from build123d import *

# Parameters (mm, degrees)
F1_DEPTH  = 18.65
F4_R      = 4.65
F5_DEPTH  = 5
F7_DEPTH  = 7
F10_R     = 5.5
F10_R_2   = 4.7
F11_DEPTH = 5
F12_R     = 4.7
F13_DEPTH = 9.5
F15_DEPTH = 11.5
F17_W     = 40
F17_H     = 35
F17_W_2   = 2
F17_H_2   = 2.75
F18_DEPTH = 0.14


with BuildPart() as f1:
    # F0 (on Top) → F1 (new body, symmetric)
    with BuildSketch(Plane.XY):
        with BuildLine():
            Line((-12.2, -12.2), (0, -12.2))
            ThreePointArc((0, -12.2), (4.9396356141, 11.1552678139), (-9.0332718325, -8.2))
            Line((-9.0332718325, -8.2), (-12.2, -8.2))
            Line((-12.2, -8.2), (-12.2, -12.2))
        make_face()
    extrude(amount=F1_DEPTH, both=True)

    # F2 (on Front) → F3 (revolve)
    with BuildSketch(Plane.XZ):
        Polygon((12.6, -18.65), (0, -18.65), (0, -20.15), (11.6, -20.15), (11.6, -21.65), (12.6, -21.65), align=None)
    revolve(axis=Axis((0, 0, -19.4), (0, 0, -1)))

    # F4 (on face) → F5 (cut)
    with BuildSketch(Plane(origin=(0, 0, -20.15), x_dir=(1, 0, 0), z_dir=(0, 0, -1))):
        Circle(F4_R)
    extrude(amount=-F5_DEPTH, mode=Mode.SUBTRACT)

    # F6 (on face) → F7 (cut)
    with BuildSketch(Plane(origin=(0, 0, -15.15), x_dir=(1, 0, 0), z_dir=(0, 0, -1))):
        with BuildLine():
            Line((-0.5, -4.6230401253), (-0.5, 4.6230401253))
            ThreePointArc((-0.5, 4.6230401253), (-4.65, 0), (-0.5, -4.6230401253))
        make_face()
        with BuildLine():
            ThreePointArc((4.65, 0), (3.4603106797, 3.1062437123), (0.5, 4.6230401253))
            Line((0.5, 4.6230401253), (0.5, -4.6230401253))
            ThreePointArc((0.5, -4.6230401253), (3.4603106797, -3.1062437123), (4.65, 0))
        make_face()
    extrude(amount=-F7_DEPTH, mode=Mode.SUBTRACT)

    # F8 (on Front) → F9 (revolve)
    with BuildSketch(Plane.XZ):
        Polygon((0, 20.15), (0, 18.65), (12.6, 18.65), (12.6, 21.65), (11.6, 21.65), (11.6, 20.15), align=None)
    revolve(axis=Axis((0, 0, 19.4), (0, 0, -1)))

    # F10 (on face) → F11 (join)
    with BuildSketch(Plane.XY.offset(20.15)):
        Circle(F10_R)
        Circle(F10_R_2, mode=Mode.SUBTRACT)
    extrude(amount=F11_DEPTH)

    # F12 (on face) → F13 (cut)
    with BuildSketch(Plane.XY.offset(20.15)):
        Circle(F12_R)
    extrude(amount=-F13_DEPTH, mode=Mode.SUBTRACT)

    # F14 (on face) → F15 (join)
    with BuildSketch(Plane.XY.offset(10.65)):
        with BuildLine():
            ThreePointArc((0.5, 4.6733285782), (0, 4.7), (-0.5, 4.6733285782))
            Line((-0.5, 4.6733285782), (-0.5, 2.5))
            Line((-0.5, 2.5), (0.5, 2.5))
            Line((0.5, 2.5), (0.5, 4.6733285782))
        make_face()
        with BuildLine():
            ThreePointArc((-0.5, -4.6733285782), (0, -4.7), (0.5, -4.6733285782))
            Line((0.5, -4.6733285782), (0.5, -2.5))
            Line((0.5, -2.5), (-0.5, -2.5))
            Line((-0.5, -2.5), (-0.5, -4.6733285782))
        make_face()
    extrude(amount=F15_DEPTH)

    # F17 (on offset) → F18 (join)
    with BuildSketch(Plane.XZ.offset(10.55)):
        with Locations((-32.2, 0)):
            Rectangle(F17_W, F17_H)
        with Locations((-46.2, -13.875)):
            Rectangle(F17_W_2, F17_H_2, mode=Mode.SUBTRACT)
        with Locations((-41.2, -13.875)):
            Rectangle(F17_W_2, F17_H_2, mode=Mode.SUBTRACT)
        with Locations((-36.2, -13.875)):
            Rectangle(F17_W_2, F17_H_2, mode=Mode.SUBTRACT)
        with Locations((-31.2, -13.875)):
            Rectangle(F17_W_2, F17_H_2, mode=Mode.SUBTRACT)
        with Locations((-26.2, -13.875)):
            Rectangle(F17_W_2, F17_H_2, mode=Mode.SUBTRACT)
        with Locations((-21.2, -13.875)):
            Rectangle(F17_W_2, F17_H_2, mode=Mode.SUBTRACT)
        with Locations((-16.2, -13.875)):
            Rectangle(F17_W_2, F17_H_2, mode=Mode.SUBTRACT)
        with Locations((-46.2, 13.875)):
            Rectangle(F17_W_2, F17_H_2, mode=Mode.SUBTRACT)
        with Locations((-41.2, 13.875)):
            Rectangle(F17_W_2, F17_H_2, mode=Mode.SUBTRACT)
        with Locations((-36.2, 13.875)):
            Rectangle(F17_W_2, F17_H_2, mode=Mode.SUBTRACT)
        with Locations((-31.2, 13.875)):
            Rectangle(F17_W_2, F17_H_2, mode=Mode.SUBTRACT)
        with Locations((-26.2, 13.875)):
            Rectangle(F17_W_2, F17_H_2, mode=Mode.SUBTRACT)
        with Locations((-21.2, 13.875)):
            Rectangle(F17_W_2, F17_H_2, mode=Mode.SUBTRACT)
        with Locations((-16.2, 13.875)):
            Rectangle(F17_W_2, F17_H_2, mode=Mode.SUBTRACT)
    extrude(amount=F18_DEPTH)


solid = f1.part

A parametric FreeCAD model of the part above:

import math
import FreeCAD as App
import Part
import Sketcher
from FreeCAD import Vector
Q = App.Units.Quantity


def add_polygon(sketch, points):
    """Adds a closed chain of lines whose ends are joined by coincident constraints."""
    first, n = sketch.GeometryCount, len(points)
    for a, b in zip(points, points[1:] + points[:1]):
        sketch.addGeometry(Part.LineSegment(App.Vector(*a, 0), App.Vector(*b, 0)), False)
    for i in range(n):
        sketch.addConstraint(Sketcher.Constraint("Coincident", first + i, 2, first + (i + 1) % n, 1))

doc = App.newDocument("Part")
body = doc.addObject("PartDesign::Body", "Body")

# Sketch on XY plane
sketch1 = doc.addObject("Sketcher::SketchObject", "Sketch")
body.addObject(sketch1)
sketch1.AttachmentSupport = (doc.XY_Plane, [""])
sketch1.MapMode = "FlatFace"
sketch1.addGeometry(Part.LineSegment(Vector(-12.2, -12.2, 0), Vector(0, -12.2, 0)), False)
sketch1.addGeometry(Part.ArcOfCircle(Part.Circle(Vector(0, 0, 0), Vector(0, 0, 1), 12.2), math.radians(-90), math.radians(222)), False)
sketch1.addGeometry(Part.LineSegment(Vector(-9, -8.2, 0), Vector(-12.2, -8.2, 0)), False)
sketch1.addGeometry(Part.LineSegment(Vector(-12.2, -8.2, 0), Vector(-12.2, -12.2, 0)), False)
sketch1.addConstraint(Sketcher.Constraint("Tangent", 0, 2, 1, 1))
sketch1.addConstraint(Sketcher.Constraint("Coincident", 1, 2, 2, 1))
sketch1.addConstraint(Sketcher.Constraint("Coincident", 2, 2, 3, 1))
sketch1.addConstraint(Sketcher.Constraint("Coincident", 3, 2, 0, 1))
sketch1.addConstraint(Sketcher.Constraint("Horizontal", 0))
sketch1.addConstraint(Sketcher.Constraint("Horizontal", 2))
sketch1.addConstraint(Sketcher.Constraint("Vertical", 3))
sketch1.addConstraint(Sketcher.Constraint("Coincident", 1, 3, -1, 1))
sketch1.addConstraint(Sketcher.Constraint("Radius", 1, Q("12.2 mm")))
sketch1.addConstraint(Sketcher.Constraint("DistanceY", 3, 2, 3, 1, Q("4 mm")))
sketch1.addConstraint(Sketcher.Constraint("DistanceX", 0, 1, 0, 2, Q("12.2 mm")))
pad1 = doc.addObject("PartDesign::Pad", "Pad")
body.addObject(pad1)
pad1.Profile = sketch1
pad1.Length = 37.3
pad1.Midplane = True

# Sketch on XZ plane
sketch2 = doc.addObject("Sketcher::SketchObject", "Sketch001")
body.addObject(sketch2)
sketch2.AttachmentSupport = (doc.XZ_Plane, [""])
sketch2.MapMode = "FlatFace"
add_polygon(sketch2, [(12.6, -18.6), (0, -18.6), (0, -20.1), (11.6, -20.1), (11.6, -21.6), (12.6, -21.6)])  # lines 0-5
sketch2.addConstraint(Sketcher.Constraint("Horizontal", 0))
sketch2.addConstraint(Sketcher.Constraint("Vertical", 1))
sketch2.addConstraint(Sketcher.Constraint("Horizontal", 2))
sketch2.addConstraint(Sketcher.Constraint("Vertical", 3))
sketch2.addConstraint(Sketcher.Constraint("Horizontal", 4))
sketch2.addConstraint(Sketcher.Constraint("Vertical", 5))
sketch2.addConstraint(Sketcher.Constraint("PointOnObject", 0, 2, -2))
sketch2.addConstraint(Sketcher.Constraint("Equal", 1, 3))
sketch2.addConstraint(Sketcher.Constraint("DistanceX", 4, 1, 4, 2, Q("1 mm")))
sketch2.addConstraint(Sketcher.Constraint("DistanceY", 5, 1, 5, 2, Q("3 mm")))
sketch2.addConstraint(Sketcher.Constraint("DistanceX", 0, 2, 0, 1, Q("12.6 mm")))
sketch2.addConstraint(Sketcher.Constraint("DistanceY", 0, 2, -1, 1, Q("18.65 mm")))
revolution = doc.addObject("PartDesign::Revolution", "Revolution")
body.addObject(revolution)
revolution.Profile = sketch2
revolution.ReferenceAxis = (sketch2, ["V_Axis"])
revolution.Angle = 360

# Sketch on XY plane
sketch3 = doc.addObject("Sketcher::SketchObject", "Sketch002")
body.addObject(sketch3)
sketch3.AttachmentSupport = (doc.XY_Plane, [""])
sketch3.MapMode = "FlatFace"
sketch3.AttachmentOffset = App.Placement(Vector(0, 0, -20.15), App.Rotation())
sketch3.addGeometry(Part.Circle(Vector(0, 0, 0), Vector(0, 0, 1), 4.7), False)
sketch3.addConstraint(Sketcher.Constraint("Coincident", 0, 3, -1, 1))
sketch3.addConstraint(Sketcher.Constraint("Diameter", 0, Q("9.3 mm")))
pocket1 = doc.addObject("PartDesign::Pocket", "Pocket")
body.addObject(pocket1)
pocket1.Profile = sketch3
pocket1.Length = 5
pocket1.Reversed = True

# Sketch on XY plane
sketch4 = doc.addObject("Sketcher::SketchObject", "Sketch003")
body.addObject(sketch4)
sketch4.AttachmentSupport = (doc.XY_Plane, [""])
sketch4.MapMode = "FlatFace"
sketch4.AttachmentOffset = App.Placement(Vector(0, 0, -15.15), App.Rotation())
sketch4.addGeometry(Part.LineSegment(Vector(-0.5, 4.6, 0), Vector(-0.5, -4.6, 0)), False)
sketch4.addGeometry(Part.ArcOfCircle(Part.Circle(Vector(0, 0, 0), Vector(0, 0, 1), 4.7), math.radians(96), math.radians(264)), False)
sketch4.addGeometry(Part.ArcOfCircle(Part.Circle(Vector(0, 0, 0), Vector(0, 0, 1), 4.7), math.radians(-84), math.radians(0)), False)
sketch4.addGeometry(Part.LineSegment(Vector(0.5, -4.6, 0), Vector(0.5, 4.6, 0)), False)
sketch4.addGeometry(Part.ArcOfCircle(Part.Circle(Vector(0, 0, 0), Vector(0, 0, 1), 4.7), math.radians(0), math.radians(84)), False)
sketch4.addConstraint(Sketcher.Constraint("Coincident", 0, 1, 1, 1))
sketch4.addConstraint(Sketcher.Constraint("Coincident", 1, 2, 0, 2))
sketch4.addConstraint(Sketcher.Constraint("Coincident", 2, 1, 3, 1))
sketch4.addConstraint(Sketcher.Constraint("Coincident", 3, 2, 4, 2))
sketch4.addConstraint(Sketcher.Constraint("Tangent", 4, 1, 2, 2))
sketch4.addConstraint(Sketcher.Constraint("Vertical", 0))
sketch4.addConstraint(Sketcher.Constraint("Vertical", 3))
sketch4.addConstraint(Sketcher.Constraint("Coincident", 1, 3, -1, 1))
sketch4.addConstraint(Sketcher.Constraint("Coincident", 2, 3, -1, 1))
sketch4.addConstraint(Sketcher.Constraint("Equal", 1, 2))
sketch4.addConstraint(Sketcher.Constraint("Equal", 2, 4))
sketch4.addConstraint(Sketcher.Constraint("PointOnObject", 4, 1, -1))
sketch4.addConstraint(Sketcher.Constraint("Horizontal", 1, 2, 2, 1))
sketch4.addConstraint(Sketcher.Constraint("Radius", 1, Q("4.65 mm")))
sketch4.addConstraint(Sketcher.Constraint("DistanceX", 1, 2, 2, 1, Q("1 mm")))
pocket2 = doc.addObject("PartDesign::Pocket", "Pocket001")
body.addObject(pocket2)
pocket2.Profile = sketch4
pocket2.Length = 7
pocket2.Reversed = True

# Sketch on XZ plane
sketch5 = doc.addObject("Sketcher::SketchObject", "Sketch004")
body.addObject(sketch5)
sketch5.AttachmentSupport = (doc.XZ_Plane, [""])
sketch5.MapMode = "FlatFace"
add_polygon(sketch5, [(0, 20.1), (0, 18.6), (12.6, 18.6), (12.6, 21.6), (11.6, 21.6), (11.6, 20.1)])  # lines 0-5
sketch5.addConstraint(Sketcher.Constraint("Vertical", 0))
sketch5.addConstraint(Sketcher.Constraint("Horizontal", 1))
sketch5.addConstraint(Sketcher.Constraint("Vertical", 2))
sketch5.addConstraint(Sketcher.Constraint("Horizontal", 3))
sketch5.addConstraint(Sketcher.Constraint("Vertical", 4))
sketch5.addConstraint(Sketcher.Constraint("Horizontal", 5))
sketch5.addConstraint(Sketcher.Constraint("PointOnObject", 0, 2, -2))
sketch5.addConstraint(Sketcher.Constraint("Equal", 0, 4))
sketch5.addConstraint(Sketcher.Constraint("DistanceX", 3, 2, 3, 1, Q("1 mm")))
sketch5.addConstraint(Sketcher.Constraint("DistanceY", 2, 1, 2, 2, Q("3 mm")))
sketch5.addConstraint(Sketcher.Constraint("DistanceX", 1, 1, 1, 2, Q("12.6 mm")))
sketch5.addConstraint(Sketcher.Constraint("DistanceY", -1, 1, 0, 2, Q("18.65 mm")))
revolution2 = doc.addObject("PartDesign::Revolution", "Revolution001")
body.addObject(revolution2)
revolution2.Profile = sketch5
revolution2.ReferenceAxis = (sketch5, ["V_Axis"])
revolution2.Angle = 360

# Sketch on XY plane
sketch6 = doc.addObject("Sketcher::SketchObject", "Sketch005")
body.addObject(sketch6)
sketch6.AttachmentSupport = (doc.XY_Plane, [""])
sketch6.MapMode = "FlatFace"
sketch6.AttachmentOffset = App.Placement(Vector(0, 0, 20.15), App.Rotation())
sketch6.addGeometry(Part.Circle(Vector(0, 0, 0), Vector(0, 0, 1), 5.5), False)
sketch6.addGeometry(Part.Circle(Vector(0, 0, 0), Vector(0, 0, 1), 4.7), False)
sketch6.addConstraint(Sketcher.Constraint("Coincident", 0, 3, -1, 1))
sketch6.addConstraint(Sketcher.Constraint("Coincident", 1, 3, -1, 1))
sketch6.addConstraint(Sketcher.Constraint("Diameter", 0, Q("11 mm")))
sketch6.addConstraint(Sketcher.Constraint("Diameter", 1, Q("9.4 mm")))
pad2 = doc.addObject("PartDesign::Pad", "Pad001")
body.addObject(pad2)
pad2.Profile = sketch6
pad2.Length = 5

# Sketch on XY plane
sketch7 = doc.addObject("Sketcher::SketchObject", "Sketch006")
body.addObject(sketch7)
sketch7.AttachmentSupport = (doc.XY_Plane, [""])
sketch7.MapMode = "FlatFace"
sketch7.AttachmentOffset = App.Placement(Vector(0, 0, 20.15), App.Rotation())
sketch7.addGeometry(Part.Circle(Vector(0, 0, 0), Vector(0, 0, 1), 4.7), False)
sketch7.addConstraint(Sketcher.Constraint("Coincident", 0, 3, -1, 1))
sketch7.addConstraint(Sketcher.Constraint("Diameter", 0, Q("9.4 mm")))
pocket3 = doc.addObject("PartDesign::Pocket", "Pocket002")
body.addObject(pocket3)
pocket3.Profile = sketch7
pocket3.Length = 9.5

# Sketch on XY plane
sketch8 = doc.addObject("Sketcher::SketchObject", "Sketch007")
body.addObject(sketch8)
sketch8.AttachmentSupport = (doc.XY_Plane, [""])
sketch8.MapMode = "FlatFace"
sketch8.AttachmentOffset = App.Placement(Vector(0, 0, 10.65), App.Rotation())
sketch8.addGeometry(Part.ArcOfCircle(Part.Circle(Vector(0, 0, 0), Vector(0, 0, 1), 4.7), math.radians(83.89), math.radians(96.11)), False)
sketch8.addGeometry(Part.LineSegment(Vector(-0.5, 4.7, 0), Vector(-0.5, 2.5, 0)), False)
sketch8.addGeometry(Part.LineSegment(Vector(-0.5, 2.5, 0), Vector(0.5, 2.5, 0)), False)
sketch8.addGeometry(Part.LineSegment(Vector(0.5, 2.5, 0), Vector(0.5, 4.7, 0)), False)
sketch8.addGeometry(Part.ArcOfCircle(Part.Circle(Vector(0, 0, 0), Vector(0, 0, 1), 4.7), math.radians(-96.11), math.radians(-83.89)), False)
sketch8.addGeometry(Part.LineSegment(Vector(0.5, -4.7, 0), Vector(0.5, -2.5, 0)), False)
sketch8.addGeometry(Part.LineSegment(Vector(0.5, -2.5, 0), Vector(-0.5, -2.5, 0)), False)
sketch8.addGeometry(Part.LineSegment(Vector(-0.5, -2.5, 0), Vector(-0.5, -4.7, 0)), False)
sketch8.addConstraint(Sketcher.Constraint("Coincident", 0, 2, 1, 1))
sketch8.addConstraint(Sketcher.Constraint("Coincident", 1, 2, 2, 1))
sketch8.addConstraint(Sketcher.Constraint("Coincident", 2, 2, 3, 1))
sketch8.addConstraint(Sketcher.Constraint("Coincident", 3, 2, 0, 1))
sketch8.addConstraint(Sketcher.Constraint("Coincident", 4, 2, 5, 1))
sketch8.addConstraint(Sketcher.Constraint("Coincident", 5, 2, 6, 1))
sketch8.addConstraint(Sketcher.Constraint("Coincident", 6, 2, 7, 1))
sketch8.addConstraint(Sketcher.Constraint("Coincident", 7, 2, 4, 1))
sketch8.addConstraint(Sketcher.Constraint("Vertical", 1))
sketch8.addConstraint(Sketcher.Constraint("Horizontal", 2))
sketch8.addConstraint(Sketcher.Constraint("Vertical", 3))
sketch8.addConstraint(Sketcher.Constraint("Vertical", 5))
sketch8.addConstraint(Sketcher.Constraint("Horizontal", 6))
sketch8.addConstraint(Sketcher.Constraint("Vertical", 7))
sketch8.addConstraint(Sketcher.Constraint("Coincident", 0, 3, -1, 1))
sketch8.addConstraint(Sketcher.Constraint("Coincident", 4, 3, -1, 1))
sketch8.addConstraint(Sketcher.Constraint("Equal", 0, 4))
sketch8.addConstraint(Sketcher.Constraint("Symmetric", 1, 2, 5, 2, -1, 1))
sketch8.addConstraint(Sketcher.Constraint("Horizontal", 0, 2, 3, 2))
sketch8.addConstraint(Sketcher.Constraint("Horizontal", 4, 2, 7, 2))
sketch8.addConstraint(Sketcher.Constraint("Radius", 0, Q("4.7 mm")))
sketch8.addConstraint(Sketcher.Constraint("DistanceX", 2, 1, 2, 2, Q("1 mm")))
sketch8.addConstraint(Sketcher.Constraint("DistanceY", 5, 2, 2, 2, Q("5 mm")))
pad3 = doc.addObject("PartDesign::Pad", "Pad002")
body.addObject(pad3)
pad3.Profile = sketch8
pad3.Length = 11.5

# Sketch on XZ plane
sketch9 = doc.addObject("Sketcher::SketchObject", "Sketch008")
body.addObject(sketch9)
sketch9.AttachmentSupport = (doc.XZ_Plane, [""])
sketch9.MapMode = "FlatFace"
sketch9.AttachmentOffset = App.Placement(Vector(0, 0, 10.55), App.Rotation())
add_polygon(sketch9, [(-52.2, 17.5), (-52.2, -17.5), (-12.2, -17.5), (-12.2, 17.5)])  # lines 0-3
add_polygon(sketch9, [(-45.2, -15.2), (-47.2, -15.2), (-47.2, -12.5), (-45.2, -12.5)])  # lines 4-7
add_polygon(sketch9, [(-40.2, -15.2), (-42.2, -15.2), (-42.2, -12.5), (-40.2, -12.5)])  # lines 8-11
add_polygon(sketch9, [(-35.2, -15.2), (-37.2, -15.2), (-37.2, -12.5), (-35.2, -12.5)])  # lines 12-15
add_polygon(sketch9, [(-30.2, -15.2), (-32.2, -15.2), (-32.2, -12.5), (-30.2, -12.5)])  # lines 16-19
add_polygon(sketch9, [(-25.2, -15.2), (-27.2, -15.2), (-27.2, -12.5), (-25.2, -12.5)])  # lines 20-23
add_polygon(sketch9, [(-20.2, -15.2), (-22.2, -15.2), (-22.2, -12.5), (-20.2, -12.5)])  # lines 24-27
add_polygon(sketch9, [(-15.2, -15.2), (-17.2, -15.2), (-17.2, -12.5), (-15.2, -12.5)])  # lines 28-31
add_polygon(sketch9, [(-45.2, 12.5), (-47.2, 12.5), (-47.2, 15.2), (-45.2, 15.2)])  # lines 32-35
add_polygon(sketch9, [(-40.2, 12.5), (-42.2, 12.5), (-42.2, 15.2), (-40.2, 15.2)])  # lines 36-39
add_polygon(sketch9, [(-35.2, 12.5), (-37.2, 12.5), (-37.2, 15.2), (-35.2, 15.2)])  # lines 40-43
add_polygon(sketch9, [(-30.2, 12.5), (-32.2, 12.5), (-32.2, 15.2), (-30.2, 15.2)])  # lines 44-47
add_polygon(sketch9, [(-25.2, 12.5), (-27.2, 12.5), (-27.2, 15.2), (-25.2, 15.2)])  # lines 48-51
add_polygon(sketch9, [(-20.2, 12.5), (-22.2, 12.5), (-22.2, 15.2), (-20.2, 15.2)])  # lines 52-55
add_polygon(sketch9, [(-15.2, 12.5), (-17.2, 12.5), (-17.2, 15.2), (-15.2, 15.2)])  # lines 56-59
sketch9.addConstraint(Sketcher.Constraint("Vertical", 0))
sketch9.addConstraint(Sketcher.Constraint("Horizontal", 1))
sketch9.addConstraint(Sketcher.Constraint("Vertical", 2))
sketch9.addConstraint(Sketcher.Constraint("Horizontal", 3))
sketch9.addConstraint(Sketcher.Constraint("Horizontal", 4))
sketch9.addConstraint(Sketcher.Constraint("Vertical", 5))
sketch9.addConstraint(Sketcher.Constraint("Horizontal", 6))
sketch9.addConstraint(Sketcher.Constraint("Vertical", 7))
sketch9.addConstraint(Sketcher.Constraint("Horizontal", 8))
sketch9.addConstraint(Sketcher.Constraint("Vertical", 9))
sketch9.addConstraint(Sketcher.Constraint("Horizontal", 10))
sketch9.addConstraint(Sketcher.Constraint("Vertical", 11))
sketch9.addConstraint(Sketcher.Constraint("Horizontal", 12))
sketch9.addConstraint(Sketcher.Constraint("Vertical", 13))
sketch9.addConstraint(Sketcher.Constraint("Horizontal", 14))
sketch9.addConstraint(Sketcher.Constraint("Vertical", 15))
sketch9.addConstraint(Sketcher.Constraint("Horizontal", 16))
sketch9.addConstraint(Sketcher.Constraint("Vertical", 17))
sketch9.addConstraint(Sketcher.Constraint("Horizontal", 18))
sketch9.addConstraint(Sketcher.Constraint("Vertical", 19))
sketch9.addConstraint(Sketcher.Constraint("Horizontal", 20))
sketch9.addConstraint(Sketcher.Constraint("Vertical", 21))
sketch9.addConstraint(Sketcher.Constraint("Horizontal", 22))
sketch9.addConstraint(Sketcher.Constraint("Vertical", 23))
sketch9.addConstraint(Sketcher.Constraint("Horizontal", 24))
sketch9.addConstraint(Sketcher.Constraint("Vertical", 25))
sketch9.addConstraint(Sketcher.Constraint("Horizontal", 26))
sketch9.addConstraint(Sketcher.Constraint("Vertical", 27))
sketch9.addConstraint(Sketcher.Constraint("Horizontal", 28))
sketch9.addConstraint(Sketcher.Constraint("Vertical", 29))
sketch9.addConstraint(Sketcher.Constraint("Horizontal", 30))
sketch9.addConstraint(Sketcher.Constraint("Vertical", 31))
sketch9.addConstraint(Sketcher.Constraint("Horizontal", 32))
sketch9.addConstraint(Sketcher.Constraint("Vertical", 33))
sketch9.addConstraint(Sketcher.Constraint("Horizontal", 34))
sketch9.addConstraint(Sketcher.Constraint("Vertical", 35))
sketch9.addConstraint(Sketcher.Constraint("Horizontal", 36))
sketch9.addConstraint(Sketcher.Constraint("Vertical", 37))
sketch9.addConstraint(Sketcher.Constraint("Horizontal", 38))
sketch9.addConstraint(Sketcher.Constraint("Vertical", 39))
sketch9.addConstraint(Sketcher.Constraint("Horizontal", 40))
sketch9.addConstraint(Sketcher.Constraint("Vertical", 41))
sketch9.addConstraint(Sketcher.Constraint("Horizontal", 42))
sketch9.addConstraint(Sketcher.Constraint("Vertical", 43))
sketch9.addConstraint(Sketcher.Constraint("Horizontal", 44))
sketch9.addConstraint(Sketcher.Constraint("Vertical", 45))
sketch9.addConstraint(Sketcher.Constraint("Horizontal", 46))
sketch9.addConstraint(Sketcher.Constraint("Vertical", 47))
sketch9.addConstraint(Sketcher.Constraint("Horizontal", 48))
sketch9.addConstraint(Sketcher.Constraint("Vertical", 49))
sketch9.addConstraint(Sketcher.Constraint("Horizontal", 50))
sketch9.addConstraint(Sketcher.Constraint("Vertical", 51))
sketch9.addConstraint(Sketcher.Constraint("Horizontal", 52))
sketch9.addConstraint(Sketcher.Constraint("Vertical", 53))
sketch9.addConstraint(Sketcher.Constraint("Horizontal", 54))
sketch9.addConstraint(Sketcher.Constraint("Vertical", 55))
sketch9.addConstraint(Sketcher.Constraint("Horizontal", 56))
sketch9.addConstraint(Sketcher.Constraint("Vertical", 57))
sketch9.addConstraint(Sketcher.Constraint("Horizontal", 58))
sketch9.addConstraint(Sketcher.Constraint("Vertical", 59))
sketch9.addConstraint(Sketcher.Constraint("Symmetric", 5, 2, 32, 2, -1))
sketch9.addConstraint(Sketcher.Constraint("Symmetric", 7, 2, 34, 2, -1))
sketch9.addConstraint(Sketcher.Constraint("Symmetric", 9, 2, 36, 2, -1))
sketch9.addConstraint(Sketcher.Constraint("Symmetric", 11, 2, 38, 2, -1))
sketch9.addConstraint(Sketcher.Constraint("Symmetric", 13, 2, 40, 2, -1))
sketch9.addConstraint(Sketcher.Constraint("Symmetric", 15, 2, 42, 2, -1))
sketch9.addConstraint(Sketcher.Constraint("Symmetric", 17, 2, 44, 2, -1))
sketch9.addConstraint(Sketcher.Constraint("Symmetric", 19, 2, 46, 2, -1))
sketch9.addConstraint(Sketcher.Constraint("Symmetric", 21, 2, 48, 2, -1))
sketch9.addConstraint(Sketcher.Constraint("Symmetric", 23, 2, 50, 2, -1))
sketch9.addConstraint(Sketcher.Constraint("Symmetric", 25, 2, 52, 2, -1))
sketch9.addConstraint(Sketcher.Constraint("Symmetric", 27, 2, 54, 2, -1))
sketch9.addConstraint(Sketcher.Constraint("Symmetric", 29, 2, 56, 2, -1))
sketch9.addConstraint(Sketcher.Constraint("Symmetric", 31, 2, 58, 2, -1))
sketch9.addConstraint(Sketcher.Constraint("Horizontal", 7, 2, 8, 2))
sketch9.addConstraint(Sketcher.Constraint("Horizontal", 6, 2, 9, 2))
sketch9.addConstraint(Sketcher.Constraint("Horizontal", 11, 2, 12, 2))
sketch9.addConstraint(Sketcher.Constraint("Horizontal", 10, 2, 13, 2))
sketch9.addConstraint(Sketcher.Constraint("Horizontal", 15, 2, 16, 2))
sketch9.addConstraint(Sketcher.Constraint("Horizontal", 14, 2, 17, 2))
sketch9.addConstraint(Sketcher.Constraint("Horizontal", 19, 2, 20, 2))
sketch9.addConstraint(Sketcher.Constraint("Horizontal", 18, 2, 21, 2))
sketch9.addConstraint(Sketcher.Constraint("Horizontal", 23, 2, 24, 2))
sketch9.addConstraint(Sketcher.Constraint("Horizontal", 22, 2, 25, 2))
sketch9.addConstraint(Sketcher.Constraint("Horizontal", 27, 2, 28, 2))
sketch9.addConstraint(Sketcher.Constraint("Horizontal", 26, 2, 29, 2))
sketch9.addConstraint(Sketcher.Constraint("Equal", 6, 8))
sketch9.addConstraint(Sketcher.Constraint("Equal", 10, 12))
sketch9.addConstraint(Sketcher.Constraint("Equal", 14, 16))
sketch9.addConstraint(Sketcher.Constraint("Equal", 18, 20))
sketch9.addConstraint(Sketcher.Constraint("Equal", 22, 24))
sketch9.addConstraint(Sketcher.Constraint("Equal", 26, 28))
sketch9.addConstraint(Sketcher.Constraint("DistanceX", 1, 1, 1, 2, Q("40 mm")))
sketch9.addConstraint(Sketcher.Constraint("DistanceX", 4, 2, 4, 1, Q("2 mm")))
sketch9.addConstraint(Sketcher.Constraint("DistanceY", 0, 2, 0, 1, Q("35 mm")))
sketch9.addConstraint(Sketcher.Constraint("DistanceX", 0, 2, 4, 2, Q("5 mm")))
sketch9.addConstraint(Sketcher.Constraint("DistanceY", 0, 2, 5, 2, Q("5 mm")))
sketch9.addConstraint(Sketcher.Constraint("DistanceX", 7, 2, 8, 2, Q("3 mm")))
sketch9.addConstraint(Sketcher.Constraint("DistanceX", 11, 2, 12, 2, Q("3 mm")))
sketch9.addConstraint(Sketcher.Constraint("DistanceX", 15, 2, 16, 2, Q("3 mm")))
sketch9.addConstraint(Sketcher.Constraint("DistanceX", 19, 2, 20, 2, Q("3 mm")))
sketch9.addConstraint(Sketcher.Constraint("DistanceX", 23, 2, 24, 2, Q("3 mm")))
sketch9.addConstraint(Sketcher.Constraint("DistanceX", 27, 2, 28, 2, Q("3 mm")))
sketch9.addConstraint(Sketcher.Constraint("DistanceY", 32, 2, 3, 2, Q("5 mm")))
sketch9.addConstraint(Sketcher.Constraint("DistanceY", 5, 1, 5, 2, Q("2.75 mm")))
sketch9.addConstraint(Sketcher.Constraint("DistanceX", 0, 2, -1, 1, Q("52.2 mm")))
pad4 = doc.addObject("PartDesign::Pad", "Pad003")
body.addObject(pad4)
pad4.Profile = sketch9
pad4.Length = 0.14

doc.recompute()
